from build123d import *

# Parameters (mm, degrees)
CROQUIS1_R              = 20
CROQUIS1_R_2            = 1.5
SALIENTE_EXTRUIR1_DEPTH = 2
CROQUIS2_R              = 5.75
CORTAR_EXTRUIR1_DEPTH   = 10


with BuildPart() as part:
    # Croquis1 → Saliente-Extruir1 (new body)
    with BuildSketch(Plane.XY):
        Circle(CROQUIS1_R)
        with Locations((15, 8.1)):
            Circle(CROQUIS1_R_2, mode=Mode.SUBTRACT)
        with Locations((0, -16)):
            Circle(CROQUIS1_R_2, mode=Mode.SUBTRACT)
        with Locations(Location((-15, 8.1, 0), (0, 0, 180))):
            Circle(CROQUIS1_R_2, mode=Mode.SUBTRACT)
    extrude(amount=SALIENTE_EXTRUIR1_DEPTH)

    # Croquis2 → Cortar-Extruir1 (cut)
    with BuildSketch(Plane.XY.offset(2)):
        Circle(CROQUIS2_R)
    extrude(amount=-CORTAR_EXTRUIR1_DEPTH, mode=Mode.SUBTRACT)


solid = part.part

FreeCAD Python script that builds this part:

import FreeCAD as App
import Part
import Sketcher
Q = App.Units.Quantity

doc = App.newDocument("Part")
body = doc.addObject("PartDesign::Body", "Body")

sketch1 = body.newObject("Sketcher::SketchObject", "Sketch")
sketch1.AttachmentSupport = (doc.getObject("XY_Plane"), [""])
sketch1.MapMode = "FlatFace"
sketch1.addGeometry([
    Part.Circle(App.Vector(0, 0, 0), App.Vector(0, 0, 1), 20),
    Part.Circle(App.Vector(0, -16, 0), App.Vector(0, 0, 1), 1.5),
    Part.Circle(App.Vector(-15, 8.1, 0), App.Vector(0, 0, 1), 1.5),
    Part.Circle(App.Vector(15, 8.1, 0), App.Vector(0, 0, 1), 1.5),
], False)
sketch1.addConstraint([
    Sketcher.Constraint("Coincident", 0, 3, -1, 1),
    Sketcher.Constraint("Equal", 1, 2),
    Sketcher.Constraint("Equal", 2, 3),
    Sketcher.Constraint("Symmetric", 2, 3, 3, 3, -2),
    Sketcher.Constraint("PointOnObject", 1, 3, -2),
    Sketcher.Constraint("Diameter", 0, Q("40 mm")),
    Sketcher.Constraint("Diameter", 1, Q("3 mm")),
    Sketcher.Constraint("DistanceY", 1, 3, -1, 1, Q("16 mm")),
    Sketcher.Constraint("DistanceX", 2, 3, -1, 1, Q("15 mm")),
    Sketcher.Constraint("DistanceY", -1, 1, 2, 3, Q("8.1 mm")),
])
pad1 = body.newObject("PartDesign::Pad", "Pad")
pad1.Profile = sketch1
pad1.Length = 2

sketch2 = body.newObject("Sketcher::SketchObject", "Sketch001")
sketch2.AttachmentSupport = (doc.getObject("XY_Plane"), [""])
sketch2.MapMode = "FlatFace"
sketch2.AttachmentOffset = App.Placement(App.Vector(0, 0, 2), App.Rotation())
sketch2.addGeometry(Part.Circle(App.Vector(0, 0, 0), App.Vector(0, 0, 1), 5.75), False)
sketch2.addConstraint([
    Sketcher.Constraint("Coincident", 0, 3, -1, 1),
    Sketcher.Constraint("Diameter", 0, Q("11.5 mm")),
])
pocket1 = body.newObject("PartDesign::Pocket", "Pocket")
pocket1.Profile = sketch2
pocket1.Length = 10

doc.recompute()
